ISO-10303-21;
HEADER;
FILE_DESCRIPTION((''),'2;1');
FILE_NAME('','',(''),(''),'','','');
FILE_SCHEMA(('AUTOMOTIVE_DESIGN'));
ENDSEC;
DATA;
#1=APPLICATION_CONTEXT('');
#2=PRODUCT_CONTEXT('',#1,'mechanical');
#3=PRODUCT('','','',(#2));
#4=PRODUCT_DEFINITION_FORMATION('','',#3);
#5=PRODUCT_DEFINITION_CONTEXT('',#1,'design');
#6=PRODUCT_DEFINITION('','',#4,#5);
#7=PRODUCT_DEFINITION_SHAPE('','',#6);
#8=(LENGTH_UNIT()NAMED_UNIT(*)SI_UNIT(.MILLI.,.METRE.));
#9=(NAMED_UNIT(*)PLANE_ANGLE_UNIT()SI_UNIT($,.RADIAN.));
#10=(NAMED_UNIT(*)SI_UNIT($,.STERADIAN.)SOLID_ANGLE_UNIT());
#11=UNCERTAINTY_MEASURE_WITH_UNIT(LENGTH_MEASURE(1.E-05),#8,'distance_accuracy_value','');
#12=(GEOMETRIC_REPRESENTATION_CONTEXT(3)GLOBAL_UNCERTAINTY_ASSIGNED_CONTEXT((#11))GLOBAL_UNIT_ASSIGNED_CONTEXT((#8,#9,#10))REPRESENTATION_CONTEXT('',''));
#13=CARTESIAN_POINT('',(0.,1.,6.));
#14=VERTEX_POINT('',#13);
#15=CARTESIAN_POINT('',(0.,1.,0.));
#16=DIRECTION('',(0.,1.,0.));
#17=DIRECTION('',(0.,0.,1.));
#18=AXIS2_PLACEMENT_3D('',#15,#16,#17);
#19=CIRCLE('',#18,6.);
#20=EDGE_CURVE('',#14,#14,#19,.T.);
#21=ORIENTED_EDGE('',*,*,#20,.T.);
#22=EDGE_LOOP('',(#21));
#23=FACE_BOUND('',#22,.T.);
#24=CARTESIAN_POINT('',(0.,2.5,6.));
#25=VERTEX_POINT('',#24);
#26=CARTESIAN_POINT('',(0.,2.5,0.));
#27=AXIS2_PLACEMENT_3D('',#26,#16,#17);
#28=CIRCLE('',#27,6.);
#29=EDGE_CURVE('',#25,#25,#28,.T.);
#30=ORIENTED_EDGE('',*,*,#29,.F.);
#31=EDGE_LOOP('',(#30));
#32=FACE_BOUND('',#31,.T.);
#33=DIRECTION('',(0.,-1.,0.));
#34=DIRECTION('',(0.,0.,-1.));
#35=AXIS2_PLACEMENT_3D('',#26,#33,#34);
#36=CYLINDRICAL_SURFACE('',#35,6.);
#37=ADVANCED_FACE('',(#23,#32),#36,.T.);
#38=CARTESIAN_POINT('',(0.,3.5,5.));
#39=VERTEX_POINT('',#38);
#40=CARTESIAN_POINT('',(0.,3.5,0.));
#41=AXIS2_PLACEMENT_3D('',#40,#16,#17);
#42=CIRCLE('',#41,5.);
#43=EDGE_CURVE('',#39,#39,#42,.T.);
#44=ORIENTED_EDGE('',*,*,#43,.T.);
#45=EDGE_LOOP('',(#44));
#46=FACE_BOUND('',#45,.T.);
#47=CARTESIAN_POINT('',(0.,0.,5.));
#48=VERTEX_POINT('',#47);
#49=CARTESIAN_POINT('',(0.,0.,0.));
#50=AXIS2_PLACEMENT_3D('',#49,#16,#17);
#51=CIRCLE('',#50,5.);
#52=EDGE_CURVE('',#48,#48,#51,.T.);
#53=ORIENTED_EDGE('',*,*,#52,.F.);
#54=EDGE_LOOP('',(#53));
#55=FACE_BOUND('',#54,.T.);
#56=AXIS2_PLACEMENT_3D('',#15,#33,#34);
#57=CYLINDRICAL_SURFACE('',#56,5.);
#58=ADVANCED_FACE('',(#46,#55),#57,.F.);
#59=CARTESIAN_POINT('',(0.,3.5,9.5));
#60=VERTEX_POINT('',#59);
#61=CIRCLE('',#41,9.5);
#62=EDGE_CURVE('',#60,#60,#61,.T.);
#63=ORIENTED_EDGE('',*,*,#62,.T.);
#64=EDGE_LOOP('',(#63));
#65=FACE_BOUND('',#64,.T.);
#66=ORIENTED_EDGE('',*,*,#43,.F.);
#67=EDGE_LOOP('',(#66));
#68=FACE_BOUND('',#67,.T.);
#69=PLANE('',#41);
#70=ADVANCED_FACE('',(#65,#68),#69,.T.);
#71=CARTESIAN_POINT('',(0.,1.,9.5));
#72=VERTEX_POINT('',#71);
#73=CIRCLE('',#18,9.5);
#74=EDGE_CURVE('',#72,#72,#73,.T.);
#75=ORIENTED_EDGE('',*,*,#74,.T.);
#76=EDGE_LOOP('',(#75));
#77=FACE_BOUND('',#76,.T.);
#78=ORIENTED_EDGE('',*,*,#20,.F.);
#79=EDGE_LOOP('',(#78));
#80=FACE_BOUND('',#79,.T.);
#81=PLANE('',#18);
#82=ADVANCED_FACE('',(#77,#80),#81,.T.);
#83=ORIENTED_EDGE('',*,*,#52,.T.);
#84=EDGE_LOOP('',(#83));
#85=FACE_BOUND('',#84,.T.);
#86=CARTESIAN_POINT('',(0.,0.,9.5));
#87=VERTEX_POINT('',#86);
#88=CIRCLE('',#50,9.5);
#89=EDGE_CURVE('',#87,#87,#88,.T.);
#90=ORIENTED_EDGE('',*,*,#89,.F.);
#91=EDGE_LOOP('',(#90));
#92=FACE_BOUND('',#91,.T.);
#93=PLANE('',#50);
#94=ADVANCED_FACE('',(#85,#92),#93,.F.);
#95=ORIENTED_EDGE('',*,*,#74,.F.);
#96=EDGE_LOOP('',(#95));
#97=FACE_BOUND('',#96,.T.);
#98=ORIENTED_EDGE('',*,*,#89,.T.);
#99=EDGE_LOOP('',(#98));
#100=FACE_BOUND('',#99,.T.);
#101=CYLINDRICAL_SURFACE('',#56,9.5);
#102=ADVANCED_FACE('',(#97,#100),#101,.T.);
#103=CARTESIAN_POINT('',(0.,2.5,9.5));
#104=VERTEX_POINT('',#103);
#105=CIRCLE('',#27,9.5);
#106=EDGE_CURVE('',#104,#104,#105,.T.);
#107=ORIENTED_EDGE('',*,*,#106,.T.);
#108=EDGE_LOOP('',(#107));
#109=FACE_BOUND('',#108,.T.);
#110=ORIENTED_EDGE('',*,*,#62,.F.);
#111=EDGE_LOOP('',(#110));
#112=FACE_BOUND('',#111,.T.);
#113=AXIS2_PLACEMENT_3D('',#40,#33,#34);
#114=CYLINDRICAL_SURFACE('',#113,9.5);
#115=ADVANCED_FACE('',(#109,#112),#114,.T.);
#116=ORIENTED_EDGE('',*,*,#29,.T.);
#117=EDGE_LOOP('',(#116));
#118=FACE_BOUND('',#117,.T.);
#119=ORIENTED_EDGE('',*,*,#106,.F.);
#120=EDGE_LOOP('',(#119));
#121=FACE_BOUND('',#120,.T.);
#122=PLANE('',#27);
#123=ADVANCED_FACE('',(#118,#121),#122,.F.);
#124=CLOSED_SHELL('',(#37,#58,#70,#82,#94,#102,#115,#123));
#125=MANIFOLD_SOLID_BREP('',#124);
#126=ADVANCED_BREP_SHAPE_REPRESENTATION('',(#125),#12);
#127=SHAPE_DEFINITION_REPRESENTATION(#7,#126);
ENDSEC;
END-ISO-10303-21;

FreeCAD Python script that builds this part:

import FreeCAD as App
import Part
import Sketcher
from FreeCAD import Vector

doc = App.newDocument("Part")
body = doc.addObject("PartDesign::Body", "Body")

# Sketch on XZ plane
sketch1 = doc.addObject("Sketcher::SketchObject", "Sketch")
body.addObject(sketch1)
sketch1.AttachmentSupport = (doc.XZ_Plane, [""])
sketch1.MapMode = "FlatFace"
sketch1.addGeometry(Part.Circle(Vector(0, 0, 0), Vector(0, 0, 1), 10), False)
sketch1.addGeometry(Part.Circle(Vector(0, 0, 0), Vector(0, 0, 1), 5), False)
sketch1.addConstraint(Sketcher.Constraint("Coincident", 0, 3, -1, 1))
sketch1.addConstraint(Sketcher.Constraint("Coincident", 1, 3, -1, 1))
sketch1.addConstraint(Sketcher.Constraint("Diameter", 0, 19.0))
sketch1.addConstraint(Sketcher.Constraint("Diameter", 1, 10.0))
pad1 = doc.addObject("PartDesign::Pad", "Pad")
body.addObject(pad1)
pad1.Profile = sketch1
pad1.Length = 1
pad1.Reversed = True

# Sketch on XZ plane
sketch2 = doc.addObject("Sketcher::SketchObject", "Sketch001")
body.addObject(sketch2)
sketch2.AttachmentSupport = (doc.XZ_Plane, [""])
sketch2.MapMode = "FlatFace"
sketch2.AttachmentOffset = App.Placement(Vector(0, 0, -1), App.Rotation())
sketch2.addGeometry(Part.Circle(Vector(0, 0, 0), Vector(0, 0, 1), 6), False)
sketch2.addGeometry(Part.Circle(Vector(0, 0, 0), Vector(0, 0, 1), 5), False)
sketch2.addConstraint(Sketcher.Constraint("Coincident", 0, 3, -1, 1))
sketch2.addConstraint(Sketcher.Constraint("Coincident", 1, 3, -1, 1))
sketch2.addConstraint(Sketcher.Constraint("Diameter", 0, 12.0))
sketch2.addConstraint(Sketcher.Constraint("Diameter", 1, 10.0))
pad2 = doc.addObject("PartDesign::Pad", "Pad001")
body.addObject(pad2)
pad2.Profile = sketch2
pad2.Length = 1.5
pad2.Reversed = True

# Sketch on XZ plane
sketch3 = doc.addObject("Sketcher::SketchObject", "Sketch002")
body.addObject(sketch3)
sketch3.AttachmentSupport = (doc.XZ_Plane, [""])
sketch3.MapMode = "FlatFace"
sketch3.AttachmentOffset = App.Placement(Vector(0, 0, -2.5), App.Rotation())
sketch3.addGeometry(Part.Circle(Vector(0, 0, 0), Vector(0, 0, 1), 10), False)
sketch3.addGeometry(Part.Circle(Vector(0, 0, 0), Vector(0, 0, 1), 5), False)
sketch3.addConstraint(Sketcher.Constraint("Coincident", 0, 3, -1, 1))
sketch3.addConstraint(Sketcher.Constraint("Coincident", 1, 3, -1, 1))
sketch3.addConstraint(Sketcher.Constraint("Diameter", 0, 19.0))
sketch3.addConstraint(Sketcher.Constraint("Diameter", 1, 10.0))
pad3 = doc.addObject("PartDesign::Pad", "Pad002")
body.addObject(pad3)
pad3.Profile = sketch3
pad3.Length = 1
pad3.Reversed = True

doc.recompute()
